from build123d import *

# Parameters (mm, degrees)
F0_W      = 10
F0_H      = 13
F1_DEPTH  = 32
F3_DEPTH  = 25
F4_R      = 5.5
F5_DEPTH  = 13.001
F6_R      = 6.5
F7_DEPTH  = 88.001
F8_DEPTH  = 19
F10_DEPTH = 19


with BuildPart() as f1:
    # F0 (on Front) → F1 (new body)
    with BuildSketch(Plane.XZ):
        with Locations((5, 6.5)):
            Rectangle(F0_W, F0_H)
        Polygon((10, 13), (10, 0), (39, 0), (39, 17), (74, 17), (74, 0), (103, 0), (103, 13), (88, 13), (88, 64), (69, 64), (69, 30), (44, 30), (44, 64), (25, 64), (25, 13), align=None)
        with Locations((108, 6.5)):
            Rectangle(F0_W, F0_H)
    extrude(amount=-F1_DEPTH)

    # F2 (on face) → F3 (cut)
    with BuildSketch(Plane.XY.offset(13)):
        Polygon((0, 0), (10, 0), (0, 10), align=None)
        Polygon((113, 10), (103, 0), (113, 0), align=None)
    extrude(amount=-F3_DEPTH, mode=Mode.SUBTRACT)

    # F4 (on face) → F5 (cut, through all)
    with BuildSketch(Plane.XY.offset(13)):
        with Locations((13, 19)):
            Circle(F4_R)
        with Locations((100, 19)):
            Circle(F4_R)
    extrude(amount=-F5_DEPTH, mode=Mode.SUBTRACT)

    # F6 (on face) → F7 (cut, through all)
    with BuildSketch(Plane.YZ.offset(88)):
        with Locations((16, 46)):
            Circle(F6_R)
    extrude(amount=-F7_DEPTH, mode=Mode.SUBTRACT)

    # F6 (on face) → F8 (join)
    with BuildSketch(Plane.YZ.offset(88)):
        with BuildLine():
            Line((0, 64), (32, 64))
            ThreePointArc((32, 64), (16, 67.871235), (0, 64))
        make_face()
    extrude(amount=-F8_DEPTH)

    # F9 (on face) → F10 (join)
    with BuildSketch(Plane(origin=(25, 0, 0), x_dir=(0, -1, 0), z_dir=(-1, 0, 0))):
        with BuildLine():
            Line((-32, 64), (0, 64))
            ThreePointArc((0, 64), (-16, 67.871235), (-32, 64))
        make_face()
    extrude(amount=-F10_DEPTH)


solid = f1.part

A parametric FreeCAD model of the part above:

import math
import FreeCAD as App
import Part
import Sketcher
Q = App.Units.Quantity

doc = App.newDocument("Part")
params = doc.addObject("Spreadsheet::Sheet", "Params")
for row, (alias, value) in enumerate([
    ("sketch1_width", "39 mm"),
    ("sketch1_width2", "35 mm"),
    ("sketch1_width3", "25 mm"),
    ("sketch1_height", "13 mm"),
    ("sketch1_height2", "17 mm"),
    ("pad1_length", "32 mm"),
    ("sketch2_width", "10 mm"),
    ("pocket1_length", "25 mm"),
    ("sketch3_diameter", "11 mm"),
    ("sketch4_diameter", "13 mm"),
    ("sketch5_radius", "35.000001 mm"),
    ("sketch5_width", "32 mm"),
    ("pad2_length", "19 mm"),
    ("sketch6_radius", "35.000001 mm"),
    ("sketch6_width", "32 mm"),
    ("pad3_length", "19 mm"),
], start=1):
    params.set(f"A{row}", alias)
    params.set(f"B{row}", "=" + value)
    params.setAlias(f"B{row}", alias)

body = doc.addObject("PartDesign::Body", "Body")

# Sketch on XZ plane
sketch1 = body.newObject("Sketcher::SketchObject", "Sketch")
sketch1.AttachmentSupport = (doc.getObject("XZ_Plane"), [""])
sketch1.MapMode = "FlatFace"
sketch1.addGeometry(Part.LineSegment(App.Vector(0, 13, 0), App.Vector(0, 0, 0)), False)
sketch1.addGeometry(Part.LineSegment(App.Vector(0, 0, 0), App.Vector(39, 0, 0)), False)
sketch1.addGeometry(Part.LineSegment(App.Vector(39, 0, 0), App.Vector(39, 17, 0)), False)
sketch1.addGeometry(Part.LineSegment(App.Vector(39, 17, 0), App.Vector(74, 17, 0)), False)
sketch1.addGeometry(Part.LineSegment(App.Vector(74, 17, 0), App.Vector(74, 0, 0)), False)
sketch1.addGeometry(Part.LineSegment(App.Vector(74, 0, 0), App.Vector(113, 0, 0)), False)
sketch1.addGeometry(Part.LineSegment(App.Vector(113, 0, 0), App.Vector(113, 13, 0)), False)
sketch1.addGeometry(Part.LineSegment(App.Vector(113, 13, 0), App.Vector(88, 13, 0)), False)
sketch1.addGeometry(Part.LineSegment(App.Vector(88, 13, 0), App.Vector(88, 64, 0)), False)
sketch1.addGeometry(Part.LineSegment(App.Vector(88, 64, 0), App.Vector(69, 64, 0)), False)
sketch1.addGeometry(Part.LineSegment(App.Vector(69, 64, 0), App.Vector(69, 30, 0)), False)
sketch1.addGeometry(Part.LineSegment(App.Vector(69, 30, 0), App.Vector(44, 30, 0)), False)
sketch1.addGeometry(Part.LineSegment(App.Vector(44, 30, 0), App.Vector(44, 64, 0)), False)
sketch1.addGeometry(Part.LineSegment(App.Vector(44, 64, 0), App.Vector(25, 64, 0)), False)
sketch1.addGeometry(Part.LineSegment(App.Vector(25, 64, 0), App.Vector(25, 13, 0)), False)
sketch1.addGeometry(Part.LineSegment(App.Vector(25, 13, 0), App.Vector(0, 13, 0)), False)
sketch1.addConstraint(Sketcher.Constraint("Coincident", 0, 2, 1, 1))
sketch1.addConstraint(Sketcher.Constraint("Coincident", 1, 2, 2, 1))
sketch1.addConstraint(Sketcher.Constraint("Coincident", 2, 2, 3, 1))
sketch1.addConstraint(Sketcher.Constraint("Coincident", 3, 2, 4, 1))
sketch1.addConstraint(Sketcher.Constraint("Coincident", 4, 2, 5, 1))
sketch1.addConstraint(Sketcher.Constraint("Coincident", 5, 2, 6, 1))
sketch1.addConstraint(Sketcher.Constraint("Coincident", 6, 2, 7, 1))
sketch1.addConstraint(Sketcher.Constraint("Coincident", 7, 2, 8, 1))
sketch1.addConstraint(Sketcher.Constraint("Coincident", 8, 2, 9, 1))
sketch1.addConstraint(Sketcher.Constraint("Coincident", 9, 2, 10, 1))
sketch1.addConstraint(Sketcher.Constraint("Coincident", 10, 2, 11, 1))
sketch1.addConstraint(Sketcher.Constraint("Coincident", 11, 2, 12, 1))
sketch1.addConstraint(Sketcher.Constraint("Coincident", 12, 2, 13, 1))
sketch1.addConstraint(Sketcher.Constraint("Coincident", 13, 2, 14, 1))
sketch1.addConstraint(Sketcher.Constraint("Coincident", 14, 2, 15, 1))
sketch1.addConstraint(Sketcher.Constraint("Coincident", 15, 2, 0, 1))
sketch1.addConstraint(Sketcher.Constraint("Vertical", 0))
sketch1.addConstraint(Sketcher.Constraint("Horizontal", 1))
sketch1.addConstraint(Sketcher.Constraint("Vertical", 2))
sketch1.addConstraint(Sketcher.Constraint("Horizontal", 3))
sketch1.addConstraint(Sketcher.Constraint("Vertical", 4))
sketch1.addConstraint(Sketcher.Constraint("Horizontal", 5))
sketch1.addConstraint(Sketcher.Constraint("Vertical", 6))
sketch1.addConstraint(Sketcher.Constraint("Horizontal", 7))
sketch1.addConstraint(Sketcher.Constraint("Vertical", 8))
sketch1.addConstraint(Sketcher.Constraint("Horizontal", 9))
sketch1.addConstraint(Sketcher.Constraint("Vertical", 10))
sketch1.addConstraint(Sketcher.Constraint("Horizontal", 11))
sketch1.addConstraint(Sketcher.Constraint("Vertical", 12))
sketch1.addConstraint(Sketcher.Constraint("Horizontal", 13))
sketch1.addConstraint(Sketcher.Constraint("Vertical", 14))
sketch1.addConstraint(Sketcher.Constraint("Horizontal", 15))
sketch1.addConstraint(Sketcher.Constraint("Coincident", 0, 2, -1, 1))
sketch1.addConstraint(Sketcher.Constraint("PointOnObject", 4, 2, -1))
sketch1.addConstraint(Sketcher.Constraint("Horizontal", 9, 2, 12, 2))
sketch1.addConstraint(Sketcher.Constraint("Horizontal", 7, 2, 14, 2))
sketch1.addConstraint(Sketcher.Constraint("Equal", 1, 5))
sketch1.addConstraint(Sketcher.Constraint("Equal", 7, 11))
sketch1.addConstraint(Sketcher.Constraint("Equal", 9, 13))
sketch1.addConstraint(Sketcher.Constraint("Equal", 11, 15))
sketch1.addConstraint(Sketcher.Constraint("DistanceX", 1, 1, 1, 2, Q("39 mm")))
sketch1.addConstraint(Sketcher.Constraint("DistanceX", 3, 1, 3, 2, Q("35 mm")))
sketch1.addConstraint(Sketcher.Constraint("DistanceX", 7, 2, 7, 1, Q("25 mm")))
sketch1.addConstraint(Sketcher.Constraint("DistanceY", 0, 2, 0, 1, Q("13 mm")))
sketch1.addConstraint(Sketcher.Constraint("DistanceY", 2, 1, 2, 2, Q("17 mm")))
sketch1.addConstraint(Sketcher.Constraint("DistanceY", 8, 1, 8, 2, Q("51 mm")))
sketch1.addConstraint(Sketcher.Constraint("DistanceY", 10, 2, 10, 1, Q("34 mm")))
sketch1.setExpression("Constraints[40]", "Params.sketch1_width")
sketch1.setExpression("Constraints[41]", "Params.sketch1_width2")
sketch1.setExpression("Constraints[42]", "Params.sketch1_width3")
sketch1.setExpression("Constraints[43]", "Params.sketch1_height")
sketch1.setExpression("Constraints[44]", "Params.sketch1_height2")
pad1 = body.newObject("PartDesign::Pad", "Pad")
pad1.Profile = sketch1
pad1.setExpression("Length", "Params.pad1_length")
pad1.Reversed = True

# Sketch on XY plane
sketch2 = body.newObject("Sketcher::SketchObject", "Sketch001")
sketch2.AttachmentSupport = (doc.getObject("XY_Plane"), [""])
sketch2.MapMode = "FlatFace"
sketch2.AttachmentOffset = App.Placement(App.Vector(0, 0, 13), App.Rotation())
sketch2.addGeometry(Part.LineSegment(App.Vector(0, 0, 0), App.Vector(10, 0, 0)), False)
sketch2.addGeometry(Part.LineSegment(App.Vector(10, 0, 0), App.Vector(0, 10, 0)), False)
sketch2.addGeometry(Part.LineSegment(App.Vector(0, 10, 0), App.Vector(0, 0, 0)), False)
sketch2.addGeometry(Part.LineSegment(App.Vector(113, 10, 0), App.Vector(103, 0, 0)), False)
sketch2.addGeometry(Part.LineSegment(App.Vector(103, 0, 0), App.Vector(113, 0, 0)), False)
sketch2.addGeometry(Part.LineSegment(App.Vector(113, 0, 0), App.Vector(113, 10, 0)), False)
sketch2.addConstraint(Sketcher.Constraint("Coincident", 0, 2, 1, 1))
sketch2.addConstraint(Sketcher.Constraint("Coincident", 1, 2, 2, 1))
sketch2.addConstraint(Sketcher.Constraint("Coincident", 2, 2, 0, 1))
sketch2.addConstraint(Sketcher.Constraint("Coincident", 3, 2, 4, 1))
sketch2.addConstraint(Sketcher.Constraint("Coincident", 4, 2, 5, 1))
sketch2.addConstraint(Sketcher.Constraint("Coincident", 5, 2, 3, 1))
sketch2.addConstraint(Sketcher.Constraint("Horizontal", 0))
sketch2.addConstraint(Sketcher.Constraint("Vertical", 2))
sketch2.addConstraint(Sketcher.Constraint("Horizontal", 4))
sketch2.addConstraint(Sketcher.Constraint("Vertical", 5))
sketch2.addConstraint(Sketcher.Constraint("Coincident", 2, 2, -1, 1))
sketch2.addConstraint(Sketcher.Constraint("PointOnObject", 3, 2, -1))
sketch2.addConstraint(Sketcher.Constraint("Perpendicular", 1, 3))
sketch2.addConstraint(Sketcher.Constraint("Horizontal", 1, 2, 5, 2))
sketch2.addConstraint(Sketcher.Constraint("Equal", 0, 4))
sketch2.addConstraint(Sketcher.Constraint("DistanceX", 0, 1, 0, 2, Q("10 mm")))
sketch2.addConstraint(Sketcher.Constraint("DistanceX", -1, 1, 3, 2, Q("103 mm")))
sketch2.setExpression("Constraints[15]", "Params.sketch2_width")
pocket1 = body.newObject("PartDesign::Pocket", "Pocket")
pocket1.Profile = sketch2
pocket1.setExpression("Length", "Params.pocket1_length")

# Sketch on XY plane
sketch3 = body.newObject("Sketcher::SketchObject", "Sketch002")
sketch3.AttachmentSupport = (doc.getObject("XY_Plane"), [""])
sketch3.MapMode = "FlatFace"
sketch3.AttachmentOffset = App.Placement(App.Vector(0, 0, 13), App.Rotation())
sketch3.addGeometry(Part.Circle(App.Vector(13, 19, 0), App.Vector(0, 0, 1), 5.5), False)
sketch3.addGeometry(Part.Circle(App.Vector(100, 19, 0), App.Vector(0, 0, 1), 5.5), False)
sketch3.addConstraint(Sketcher.Constraint("Equal", 0, 1))
sketch3.addConstraint(Sketcher.Constraint("Horizontal", 0, 3, 1, 3))
sketch3.addConstraint(Sketcher.Constraint("Diameter", 0, Q("11 mm")))
sketch3.addConstraint(Sketcher.Constraint("DistanceX", -1, 1, 0, 3, Q("13 mm")))
sketch3.addConstraint(Sketcher.Constraint("DistanceY", -1, 1, 0, 3, Q("19 mm")))
sketch3.addConstraint(Sketcher.Constraint("DistanceX", -1, 1, 1, 3, Q("100 mm")))
sketch3.setExpression("Constraints[2]", "Params.sketch3_diameter")
pocket2 = body.newObject("PartDesign::Pocket", "Pocket001")
pocket2.Profile = sketch3
pocket2.Type = "ThroughAll"

# Sketch on YZ plane
sketch4 = body.newObject("Sketcher::SketchObject", "Sketch003")
sketch4.AttachmentSupport = (doc.getObject("YZ_Plane"), [""])
sketch4.MapMode = "FlatFace"
sketch4.AttachmentOffset = App.Placement(App.Vector(0, 0, 88), App.Rotation())
sketch4.addGeometry(Part.Circle(App.Vector(16, 46, 0), App.Vector(0, 0, 1), 6.5), False)
sketch4.addConstraint(Sketcher.Constraint("Diameter", 0, Q("13 mm")))
sketch4.addConstraint(Sketcher.Constraint("DistanceX", -1, 1, 0, 3, Q("16 mm")))
sketch4.addConstraint(Sketcher.Constraint("DistanceY", -1, 1, 0, 3, Q("46 mm")))
sketch4.setExpression("Constraints[0]", "Params.sketch4_diameter")
pocket3 = body.newObject("PartDesign::Pocket", "Pocket002")
pocket3.Profile = sketch4
pocket3.Type = "ThroughAll"

# Sketch on YZ plane
sketch5 = body.newObject("Sketcher::SketchObject", "Sketch004")
sketch5.AttachmentSupport = (doc.getObject("YZ_Plane"), [""])
sketch5.MapMode = "FlatFace"
sketch5.AttachmentOffset = App.Placement(App.Vector(0, 0, 88), App.Rotation())
sketch5.addGeometry(Part.LineSegment(App.Vector(0, 64, 0), App.Vector(32, 64, 0)), False)
sketch5.addGeometry(Part.ArcOfCircle(Part.Circle(App.Vector(16, 32.871234, 0), App.Vector(0, 0, 1), 35.000001), math.radians(62.797107), math.radians(117.202893)), False)
sketch5.addConstraint(Sketcher.Constraint("Coincident", 0, 1, 1, 2))
sketch5.addConstraint(Sketcher.Constraint("Coincident", 1, 1, 0, 2))
sketch5.addConstraint(Sketcher.Constraint("Horizontal", 0))
sketch5.addConstraint(Sketcher.Constraint("PointOnObject", 0, 1, -2))
sketch5.addConstraint(Sketcher.Constraint("Radius", 1, Q("35.000001 mm")))
sketch5.addConstraint(Sketcher.Constraint("DistanceX", 0, 1, 0, 2, Q("32 mm")))
sketch5.addConstraint(Sketcher.Constraint("DistanceY", -1, 1, 0, 1, Q("64 mm")))
sketch5.setExpression("Constraints[4]", "Params.sketch5_radius")
sketch5.setExpression("Constraints[5]", "Params.sketch5_width")
pad2 = body.newObject("PartDesign::Pad", "Pad001")
pad2.Profile = sketch5
pad2.setExpression("Length", "Params.pad2_length")
pad2.Reversed = True

# Sketch on YZ plane
sketch6 = body.newObject("Sketcher::SketchObject", "Sketch005")
sketch6.AttachmentSupport = (doc.getObject("YZ_Plane"), [""])
sketch6.MapMode = "FlatFace"
sketch6.AttachmentOffset = App.Placement(App.Vector(0, 0, 25), App.Rotation())
sketch6.addGeometry(Part.LineSegment(App.Vector(32, 64, 0), App.Vector(0, 64, 0)), False)
sketch6.addGeometry(Part.ArcOfCircle(Part.Circle(App.Vector(16, 32.871234, 0), App.Vector(0, 0, 1), 35.000001), math.radians(62.797107), math.radians(117.202893)), False)
sketch6.addConstraint(Sketcher.Constraint("Coincident", 0, 1, 1, 1))
sketch6.addConstraint(Sketcher.Constraint("Coincident", 1, 2, 0, 2))
sketch6.addConstraint(Sketcher.Constraint("Horizontal", 0))
sketch6.addConstraint(Sketcher.Constraint("PointOnObject", 1, 2, -2))
sketch6.addConstraint(Sketcher.Constraint("Radius", 1, Q("35.000001 mm")))
sketch6.addConstraint(Sketcher.Constraint("DistanceX", 0, 2, 0, 1, Q("32 mm")))
sketch6.addConstraint(Sketcher.Constraint("DistanceY", -1, 1, 0, 1, Q("64 mm")))
sketch6.setExpression("Constraints[4]", "Params.sketch6_radius")
sketch6.setExpression("Constraints[5]", "Params.sketch6_width")
pad3 = body.newObject("PartDesign::Pad", "Pad002")
pad3.Profile = sketch6
pad3.setExpression("Length", "Params.pad3_length")

doc.recompute()
